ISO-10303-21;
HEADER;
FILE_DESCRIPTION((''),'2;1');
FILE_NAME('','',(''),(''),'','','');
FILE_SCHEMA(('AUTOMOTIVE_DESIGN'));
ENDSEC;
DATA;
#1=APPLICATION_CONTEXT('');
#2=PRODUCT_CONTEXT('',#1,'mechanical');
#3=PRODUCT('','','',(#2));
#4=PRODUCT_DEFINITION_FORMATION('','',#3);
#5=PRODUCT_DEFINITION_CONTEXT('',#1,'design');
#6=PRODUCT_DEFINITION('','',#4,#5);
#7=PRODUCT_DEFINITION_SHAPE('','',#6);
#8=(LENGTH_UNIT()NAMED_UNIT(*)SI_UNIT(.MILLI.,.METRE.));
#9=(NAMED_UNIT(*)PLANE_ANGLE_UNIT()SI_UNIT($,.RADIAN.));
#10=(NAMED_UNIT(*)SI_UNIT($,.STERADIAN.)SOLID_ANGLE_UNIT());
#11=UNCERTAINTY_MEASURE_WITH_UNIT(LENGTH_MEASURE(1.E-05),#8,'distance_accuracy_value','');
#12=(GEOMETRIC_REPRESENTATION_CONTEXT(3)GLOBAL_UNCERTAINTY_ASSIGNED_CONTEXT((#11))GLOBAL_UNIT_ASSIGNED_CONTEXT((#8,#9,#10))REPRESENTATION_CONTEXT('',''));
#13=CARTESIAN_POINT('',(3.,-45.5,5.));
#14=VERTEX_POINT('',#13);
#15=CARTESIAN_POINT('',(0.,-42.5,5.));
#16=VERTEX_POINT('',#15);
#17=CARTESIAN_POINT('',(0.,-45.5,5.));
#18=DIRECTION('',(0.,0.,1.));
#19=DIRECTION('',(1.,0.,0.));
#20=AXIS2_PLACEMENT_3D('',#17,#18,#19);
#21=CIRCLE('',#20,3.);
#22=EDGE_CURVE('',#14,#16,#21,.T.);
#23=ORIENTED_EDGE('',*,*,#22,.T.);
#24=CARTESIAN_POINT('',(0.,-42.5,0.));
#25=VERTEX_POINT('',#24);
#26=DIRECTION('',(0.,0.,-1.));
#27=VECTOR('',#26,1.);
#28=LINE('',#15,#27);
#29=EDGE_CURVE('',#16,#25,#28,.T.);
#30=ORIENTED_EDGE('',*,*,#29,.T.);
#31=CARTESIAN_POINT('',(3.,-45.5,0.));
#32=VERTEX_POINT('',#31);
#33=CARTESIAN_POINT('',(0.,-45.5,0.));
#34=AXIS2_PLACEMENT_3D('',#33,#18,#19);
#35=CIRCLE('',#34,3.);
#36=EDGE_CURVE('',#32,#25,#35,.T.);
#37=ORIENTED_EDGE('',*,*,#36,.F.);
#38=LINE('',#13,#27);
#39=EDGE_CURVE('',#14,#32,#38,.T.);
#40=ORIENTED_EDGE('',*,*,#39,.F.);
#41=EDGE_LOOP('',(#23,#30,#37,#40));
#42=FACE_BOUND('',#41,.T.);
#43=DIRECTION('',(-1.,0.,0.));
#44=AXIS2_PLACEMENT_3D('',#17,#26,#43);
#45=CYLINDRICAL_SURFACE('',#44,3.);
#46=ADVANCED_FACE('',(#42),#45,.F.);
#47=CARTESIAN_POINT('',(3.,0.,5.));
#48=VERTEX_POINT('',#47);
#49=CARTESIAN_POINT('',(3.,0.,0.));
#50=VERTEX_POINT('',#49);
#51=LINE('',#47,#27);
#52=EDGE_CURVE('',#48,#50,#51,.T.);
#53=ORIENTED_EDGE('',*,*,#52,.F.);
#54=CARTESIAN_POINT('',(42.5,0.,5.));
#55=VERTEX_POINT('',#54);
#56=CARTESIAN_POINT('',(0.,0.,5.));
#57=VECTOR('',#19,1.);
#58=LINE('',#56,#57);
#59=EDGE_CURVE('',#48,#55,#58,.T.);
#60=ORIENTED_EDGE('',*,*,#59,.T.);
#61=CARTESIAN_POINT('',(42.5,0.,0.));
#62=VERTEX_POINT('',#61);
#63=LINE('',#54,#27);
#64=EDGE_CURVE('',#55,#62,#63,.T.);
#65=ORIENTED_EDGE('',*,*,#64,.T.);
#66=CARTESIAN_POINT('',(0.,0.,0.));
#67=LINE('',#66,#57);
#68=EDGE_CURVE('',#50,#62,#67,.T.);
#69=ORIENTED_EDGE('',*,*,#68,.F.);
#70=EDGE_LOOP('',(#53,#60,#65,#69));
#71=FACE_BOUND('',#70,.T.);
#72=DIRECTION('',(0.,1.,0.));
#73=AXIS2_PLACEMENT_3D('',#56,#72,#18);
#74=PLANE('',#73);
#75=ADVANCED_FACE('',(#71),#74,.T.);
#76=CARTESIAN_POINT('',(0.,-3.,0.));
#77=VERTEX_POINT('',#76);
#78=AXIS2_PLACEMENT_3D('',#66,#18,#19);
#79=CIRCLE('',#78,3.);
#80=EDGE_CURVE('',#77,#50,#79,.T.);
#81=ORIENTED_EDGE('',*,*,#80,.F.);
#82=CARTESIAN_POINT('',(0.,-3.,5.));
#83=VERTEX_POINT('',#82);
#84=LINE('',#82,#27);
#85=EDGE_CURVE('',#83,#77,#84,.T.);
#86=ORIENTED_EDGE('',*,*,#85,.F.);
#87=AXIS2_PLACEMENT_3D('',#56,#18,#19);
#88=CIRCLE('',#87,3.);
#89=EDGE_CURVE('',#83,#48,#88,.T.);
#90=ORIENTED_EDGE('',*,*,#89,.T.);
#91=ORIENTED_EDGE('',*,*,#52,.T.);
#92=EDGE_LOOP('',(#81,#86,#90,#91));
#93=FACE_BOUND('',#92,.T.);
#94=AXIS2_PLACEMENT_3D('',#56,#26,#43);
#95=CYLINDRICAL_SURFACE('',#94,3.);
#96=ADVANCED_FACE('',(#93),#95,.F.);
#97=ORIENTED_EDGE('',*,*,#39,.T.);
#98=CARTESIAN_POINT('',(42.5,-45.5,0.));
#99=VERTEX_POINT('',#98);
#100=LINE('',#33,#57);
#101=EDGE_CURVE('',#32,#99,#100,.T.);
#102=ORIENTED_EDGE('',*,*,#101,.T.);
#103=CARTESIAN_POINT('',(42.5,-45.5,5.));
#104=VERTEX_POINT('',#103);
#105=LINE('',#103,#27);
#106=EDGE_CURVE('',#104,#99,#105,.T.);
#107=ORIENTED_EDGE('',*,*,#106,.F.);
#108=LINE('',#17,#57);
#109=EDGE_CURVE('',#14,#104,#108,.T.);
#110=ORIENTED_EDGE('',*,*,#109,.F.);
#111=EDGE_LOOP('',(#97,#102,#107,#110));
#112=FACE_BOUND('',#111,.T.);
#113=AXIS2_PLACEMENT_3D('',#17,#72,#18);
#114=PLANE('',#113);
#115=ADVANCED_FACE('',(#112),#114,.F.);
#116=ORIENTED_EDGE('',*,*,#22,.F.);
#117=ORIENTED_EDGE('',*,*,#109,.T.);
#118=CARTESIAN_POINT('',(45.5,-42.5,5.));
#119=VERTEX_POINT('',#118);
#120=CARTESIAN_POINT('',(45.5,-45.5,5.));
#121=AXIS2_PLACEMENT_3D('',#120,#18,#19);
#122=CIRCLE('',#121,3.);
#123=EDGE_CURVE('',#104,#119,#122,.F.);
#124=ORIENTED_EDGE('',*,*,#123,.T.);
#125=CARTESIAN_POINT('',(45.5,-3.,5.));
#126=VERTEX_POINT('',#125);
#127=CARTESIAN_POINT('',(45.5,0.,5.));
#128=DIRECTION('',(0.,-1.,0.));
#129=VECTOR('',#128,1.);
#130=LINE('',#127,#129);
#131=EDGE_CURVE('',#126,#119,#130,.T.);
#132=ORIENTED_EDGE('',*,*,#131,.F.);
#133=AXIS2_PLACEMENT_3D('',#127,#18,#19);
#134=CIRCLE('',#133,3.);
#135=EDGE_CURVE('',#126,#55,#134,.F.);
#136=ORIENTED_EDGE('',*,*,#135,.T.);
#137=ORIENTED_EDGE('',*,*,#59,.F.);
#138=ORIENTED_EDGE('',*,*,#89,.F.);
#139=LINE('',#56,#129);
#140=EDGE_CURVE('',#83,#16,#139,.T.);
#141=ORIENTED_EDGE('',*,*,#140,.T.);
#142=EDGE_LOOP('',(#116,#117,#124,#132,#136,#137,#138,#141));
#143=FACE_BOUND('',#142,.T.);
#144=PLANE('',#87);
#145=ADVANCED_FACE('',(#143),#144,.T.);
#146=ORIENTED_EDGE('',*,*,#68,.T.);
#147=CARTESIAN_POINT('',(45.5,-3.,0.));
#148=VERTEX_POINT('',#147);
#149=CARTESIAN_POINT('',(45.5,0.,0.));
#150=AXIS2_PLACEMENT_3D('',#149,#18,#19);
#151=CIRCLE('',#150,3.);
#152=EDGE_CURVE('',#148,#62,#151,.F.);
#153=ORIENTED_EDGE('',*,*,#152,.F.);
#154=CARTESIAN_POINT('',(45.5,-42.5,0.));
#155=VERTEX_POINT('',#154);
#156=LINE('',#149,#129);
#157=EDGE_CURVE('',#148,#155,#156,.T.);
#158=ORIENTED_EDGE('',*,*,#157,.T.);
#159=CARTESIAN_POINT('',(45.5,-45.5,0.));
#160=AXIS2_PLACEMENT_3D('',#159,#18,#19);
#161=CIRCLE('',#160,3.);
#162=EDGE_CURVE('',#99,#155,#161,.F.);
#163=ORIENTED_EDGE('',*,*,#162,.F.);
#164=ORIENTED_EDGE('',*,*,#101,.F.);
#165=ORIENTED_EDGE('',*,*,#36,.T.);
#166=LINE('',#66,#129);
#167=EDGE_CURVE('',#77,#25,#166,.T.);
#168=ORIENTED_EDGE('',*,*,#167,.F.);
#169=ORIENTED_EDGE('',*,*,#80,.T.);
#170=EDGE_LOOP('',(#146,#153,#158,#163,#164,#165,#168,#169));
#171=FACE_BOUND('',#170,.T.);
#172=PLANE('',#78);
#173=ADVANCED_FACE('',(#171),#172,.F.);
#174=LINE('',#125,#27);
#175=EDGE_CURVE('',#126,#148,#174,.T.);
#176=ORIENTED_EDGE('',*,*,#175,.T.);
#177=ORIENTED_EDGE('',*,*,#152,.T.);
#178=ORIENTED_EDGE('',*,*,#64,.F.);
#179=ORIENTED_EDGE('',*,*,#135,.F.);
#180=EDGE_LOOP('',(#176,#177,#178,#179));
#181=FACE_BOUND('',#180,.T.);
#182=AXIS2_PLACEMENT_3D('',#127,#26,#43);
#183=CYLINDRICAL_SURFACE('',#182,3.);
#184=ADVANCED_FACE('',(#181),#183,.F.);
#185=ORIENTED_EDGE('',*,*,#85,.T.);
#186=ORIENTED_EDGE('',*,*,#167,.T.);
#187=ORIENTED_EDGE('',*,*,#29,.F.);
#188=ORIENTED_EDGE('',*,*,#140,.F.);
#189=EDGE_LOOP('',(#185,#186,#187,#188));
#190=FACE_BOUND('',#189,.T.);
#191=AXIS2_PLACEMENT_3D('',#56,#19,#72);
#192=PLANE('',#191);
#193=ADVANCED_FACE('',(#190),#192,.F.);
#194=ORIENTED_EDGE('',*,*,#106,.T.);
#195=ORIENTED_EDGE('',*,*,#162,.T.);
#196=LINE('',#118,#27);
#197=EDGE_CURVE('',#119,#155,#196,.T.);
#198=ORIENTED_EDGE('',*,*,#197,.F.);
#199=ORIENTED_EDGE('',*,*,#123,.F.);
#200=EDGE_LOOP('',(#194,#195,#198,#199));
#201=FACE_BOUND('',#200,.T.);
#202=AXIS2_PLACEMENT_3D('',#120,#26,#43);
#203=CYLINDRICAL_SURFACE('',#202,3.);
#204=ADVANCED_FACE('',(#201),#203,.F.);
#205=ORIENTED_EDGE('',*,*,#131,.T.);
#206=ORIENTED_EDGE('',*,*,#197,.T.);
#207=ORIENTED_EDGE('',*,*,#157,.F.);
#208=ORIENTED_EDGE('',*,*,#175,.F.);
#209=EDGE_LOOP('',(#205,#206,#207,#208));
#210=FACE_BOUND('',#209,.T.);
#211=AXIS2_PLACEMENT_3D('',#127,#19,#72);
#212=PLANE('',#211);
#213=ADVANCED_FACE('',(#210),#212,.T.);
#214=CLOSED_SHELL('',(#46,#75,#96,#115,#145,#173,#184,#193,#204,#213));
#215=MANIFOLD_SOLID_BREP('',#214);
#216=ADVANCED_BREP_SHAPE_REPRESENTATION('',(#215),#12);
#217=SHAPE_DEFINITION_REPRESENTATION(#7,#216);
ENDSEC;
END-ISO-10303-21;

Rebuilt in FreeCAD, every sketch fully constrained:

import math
import FreeCAD as App
import Part
import Sketcher
from FreeCAD import Vector

doc = App.newDocument("Part")
body = doc.addObject("PartDesign::Body", "Body")

# Sketch on XY plane
sketch1 = body.newObject("Sketcher::SketchObject", "Sketch")
sketch1.AttachmentSupport = (doc.getObject("XY_Plane"), [""])
sketch1.MapMode = "FlatFace"
sketch1.addGeometry(Part.LineSegment(Vector(42.5, 0, 0), Vector(3, 0, 0)), False)
sketch1.addGeometry(Part.ArcOfCircle(Part.Circle(Vector(0, 0, 0), Vector(0, 0, 1), 3), math.radians(-90), math.radians(0)), False)
sketch1.addGeometry(Part.LineSegment(Vector(0, -3, 0), Vector(0, -42.5, 0)), False)
sketch1.addGeometry(Part.ArcOfCircle(Part.Circle(Vector(0, -45.5, 0), Vector(0, 0, 1), 3), math.radians(0), math.radians(90)), False)
sketch1.addGeometry(Part.LineSegment(Vector(3, -45.5, 0), Vector(42.5, -45.5, 0)), False)
sketch1.addGeometry(Part.ArcOfCircle(Part.Circle(Vector(45.5, -45.5, 0), Vector(0, 0, 1), 3), math.radians(90), math.radians(180)), False)
sketch1.addGeometry(Part.LineSegment(Vector(45.5, -42.5, 0), Vector(45.5, -3, 0)), False)
sketch1.addGeometry(Part.ArcOfCircle(Part.Circle(Vector(45.5, 0, 0), Vector(0, 0, 1), 3), math.radians(180), math.radians(270)), False)
sketch1.addConstraint(Sketcher.Constraint("Coincident", 0, 2, 1, 2))
sketch1.addConstraint(Sketcher.Constraint("Coincident", 1, 1, 2, 1))
sketch1.addConstraint(Sketcher.Constraint("Coincident", 2, 2, 3, 2))
sketch1.addConstraint(Sketcher.Constraint("Coincident", 3, 1, 4, 1))
sketch1.addConstraint(Sketcher.Constraint("Coincident", 4, 2, 5, 2))
sketch1.addConstraint(Sketcher.Constraint("Coincident", 5, 1, 6, 1))
sketch1.addConstraint(Sketcher.Constraint("Coincident", 6, 2, 7, 2))
sketch1.addConstraint(Sketcher.Constraint("Coincident", 7, 1, 0, 1))
sketch1.addConstraint(Sketcher.Constraint("Horizontal", 0))
sketch1.addConstraint(Sketcher.Constraint("Vertical", 2))
sketch1.addConstraint(Sketcher.Constraint("Horizontal", 4))
sketch1.addConstraint(Sketcher.Constraint("Vertical", 6))
sketch1.addConstraint(Sketcher.Constraint("Coincident", 1, 3, -1, 1))
sketch1.addConstraint(Sketcher.Constraint("Equal", 1, 3))
sketch1.addConstraint(Sketcher.Constraint("Equal", 3, 5))
sketch1.addConstraint(Sketcher.Constraint("Equal", 5, 7))
sketch1.addConstraint(Sketcher.Constraint("PointOnObject", 3, 3, -2))
sketch1.addConstraint(Sketcher.Constraint("PointOnObject", 7, 3, -1))
sketch1.addConstraint(Sketcher.Constraint("PointOnObject", 0, 2, -1))
sketch1.addConstraint(Sketcher.Constraint("PointOnObject", 1, 1, -2))
sketch1.addConstraint(Sketcher.Constraint("Horizontal", 3, 3, 5, 3))
sketch1.addConstraint(Sketcher.Constraint("Horizontal", 5, 3, 3, 1))
sketch1.addConstraint(Sketcher.Constraint("Vertical", 5, 3, 7, 3))
sketch1.addConstraint(Sketcher.Constraint("Vertical", 7, 3, 5, 1))
sketch1.addConstraint(Sketcher.Constraint("Equal", 4, 2))
sketch1.addConstraint(Sketcher.Constraint("Radius", 1, 3.0))
sketch1.addConstraint(Sketcher.Constraint("DistanceX", 0, 2, 0, 1, 39.5))
pad1 = body.newObject("PartDesign::Pad", "Pad")
pad1.Profile = sketch1
pad1.Length = 5

doc.recompute()
